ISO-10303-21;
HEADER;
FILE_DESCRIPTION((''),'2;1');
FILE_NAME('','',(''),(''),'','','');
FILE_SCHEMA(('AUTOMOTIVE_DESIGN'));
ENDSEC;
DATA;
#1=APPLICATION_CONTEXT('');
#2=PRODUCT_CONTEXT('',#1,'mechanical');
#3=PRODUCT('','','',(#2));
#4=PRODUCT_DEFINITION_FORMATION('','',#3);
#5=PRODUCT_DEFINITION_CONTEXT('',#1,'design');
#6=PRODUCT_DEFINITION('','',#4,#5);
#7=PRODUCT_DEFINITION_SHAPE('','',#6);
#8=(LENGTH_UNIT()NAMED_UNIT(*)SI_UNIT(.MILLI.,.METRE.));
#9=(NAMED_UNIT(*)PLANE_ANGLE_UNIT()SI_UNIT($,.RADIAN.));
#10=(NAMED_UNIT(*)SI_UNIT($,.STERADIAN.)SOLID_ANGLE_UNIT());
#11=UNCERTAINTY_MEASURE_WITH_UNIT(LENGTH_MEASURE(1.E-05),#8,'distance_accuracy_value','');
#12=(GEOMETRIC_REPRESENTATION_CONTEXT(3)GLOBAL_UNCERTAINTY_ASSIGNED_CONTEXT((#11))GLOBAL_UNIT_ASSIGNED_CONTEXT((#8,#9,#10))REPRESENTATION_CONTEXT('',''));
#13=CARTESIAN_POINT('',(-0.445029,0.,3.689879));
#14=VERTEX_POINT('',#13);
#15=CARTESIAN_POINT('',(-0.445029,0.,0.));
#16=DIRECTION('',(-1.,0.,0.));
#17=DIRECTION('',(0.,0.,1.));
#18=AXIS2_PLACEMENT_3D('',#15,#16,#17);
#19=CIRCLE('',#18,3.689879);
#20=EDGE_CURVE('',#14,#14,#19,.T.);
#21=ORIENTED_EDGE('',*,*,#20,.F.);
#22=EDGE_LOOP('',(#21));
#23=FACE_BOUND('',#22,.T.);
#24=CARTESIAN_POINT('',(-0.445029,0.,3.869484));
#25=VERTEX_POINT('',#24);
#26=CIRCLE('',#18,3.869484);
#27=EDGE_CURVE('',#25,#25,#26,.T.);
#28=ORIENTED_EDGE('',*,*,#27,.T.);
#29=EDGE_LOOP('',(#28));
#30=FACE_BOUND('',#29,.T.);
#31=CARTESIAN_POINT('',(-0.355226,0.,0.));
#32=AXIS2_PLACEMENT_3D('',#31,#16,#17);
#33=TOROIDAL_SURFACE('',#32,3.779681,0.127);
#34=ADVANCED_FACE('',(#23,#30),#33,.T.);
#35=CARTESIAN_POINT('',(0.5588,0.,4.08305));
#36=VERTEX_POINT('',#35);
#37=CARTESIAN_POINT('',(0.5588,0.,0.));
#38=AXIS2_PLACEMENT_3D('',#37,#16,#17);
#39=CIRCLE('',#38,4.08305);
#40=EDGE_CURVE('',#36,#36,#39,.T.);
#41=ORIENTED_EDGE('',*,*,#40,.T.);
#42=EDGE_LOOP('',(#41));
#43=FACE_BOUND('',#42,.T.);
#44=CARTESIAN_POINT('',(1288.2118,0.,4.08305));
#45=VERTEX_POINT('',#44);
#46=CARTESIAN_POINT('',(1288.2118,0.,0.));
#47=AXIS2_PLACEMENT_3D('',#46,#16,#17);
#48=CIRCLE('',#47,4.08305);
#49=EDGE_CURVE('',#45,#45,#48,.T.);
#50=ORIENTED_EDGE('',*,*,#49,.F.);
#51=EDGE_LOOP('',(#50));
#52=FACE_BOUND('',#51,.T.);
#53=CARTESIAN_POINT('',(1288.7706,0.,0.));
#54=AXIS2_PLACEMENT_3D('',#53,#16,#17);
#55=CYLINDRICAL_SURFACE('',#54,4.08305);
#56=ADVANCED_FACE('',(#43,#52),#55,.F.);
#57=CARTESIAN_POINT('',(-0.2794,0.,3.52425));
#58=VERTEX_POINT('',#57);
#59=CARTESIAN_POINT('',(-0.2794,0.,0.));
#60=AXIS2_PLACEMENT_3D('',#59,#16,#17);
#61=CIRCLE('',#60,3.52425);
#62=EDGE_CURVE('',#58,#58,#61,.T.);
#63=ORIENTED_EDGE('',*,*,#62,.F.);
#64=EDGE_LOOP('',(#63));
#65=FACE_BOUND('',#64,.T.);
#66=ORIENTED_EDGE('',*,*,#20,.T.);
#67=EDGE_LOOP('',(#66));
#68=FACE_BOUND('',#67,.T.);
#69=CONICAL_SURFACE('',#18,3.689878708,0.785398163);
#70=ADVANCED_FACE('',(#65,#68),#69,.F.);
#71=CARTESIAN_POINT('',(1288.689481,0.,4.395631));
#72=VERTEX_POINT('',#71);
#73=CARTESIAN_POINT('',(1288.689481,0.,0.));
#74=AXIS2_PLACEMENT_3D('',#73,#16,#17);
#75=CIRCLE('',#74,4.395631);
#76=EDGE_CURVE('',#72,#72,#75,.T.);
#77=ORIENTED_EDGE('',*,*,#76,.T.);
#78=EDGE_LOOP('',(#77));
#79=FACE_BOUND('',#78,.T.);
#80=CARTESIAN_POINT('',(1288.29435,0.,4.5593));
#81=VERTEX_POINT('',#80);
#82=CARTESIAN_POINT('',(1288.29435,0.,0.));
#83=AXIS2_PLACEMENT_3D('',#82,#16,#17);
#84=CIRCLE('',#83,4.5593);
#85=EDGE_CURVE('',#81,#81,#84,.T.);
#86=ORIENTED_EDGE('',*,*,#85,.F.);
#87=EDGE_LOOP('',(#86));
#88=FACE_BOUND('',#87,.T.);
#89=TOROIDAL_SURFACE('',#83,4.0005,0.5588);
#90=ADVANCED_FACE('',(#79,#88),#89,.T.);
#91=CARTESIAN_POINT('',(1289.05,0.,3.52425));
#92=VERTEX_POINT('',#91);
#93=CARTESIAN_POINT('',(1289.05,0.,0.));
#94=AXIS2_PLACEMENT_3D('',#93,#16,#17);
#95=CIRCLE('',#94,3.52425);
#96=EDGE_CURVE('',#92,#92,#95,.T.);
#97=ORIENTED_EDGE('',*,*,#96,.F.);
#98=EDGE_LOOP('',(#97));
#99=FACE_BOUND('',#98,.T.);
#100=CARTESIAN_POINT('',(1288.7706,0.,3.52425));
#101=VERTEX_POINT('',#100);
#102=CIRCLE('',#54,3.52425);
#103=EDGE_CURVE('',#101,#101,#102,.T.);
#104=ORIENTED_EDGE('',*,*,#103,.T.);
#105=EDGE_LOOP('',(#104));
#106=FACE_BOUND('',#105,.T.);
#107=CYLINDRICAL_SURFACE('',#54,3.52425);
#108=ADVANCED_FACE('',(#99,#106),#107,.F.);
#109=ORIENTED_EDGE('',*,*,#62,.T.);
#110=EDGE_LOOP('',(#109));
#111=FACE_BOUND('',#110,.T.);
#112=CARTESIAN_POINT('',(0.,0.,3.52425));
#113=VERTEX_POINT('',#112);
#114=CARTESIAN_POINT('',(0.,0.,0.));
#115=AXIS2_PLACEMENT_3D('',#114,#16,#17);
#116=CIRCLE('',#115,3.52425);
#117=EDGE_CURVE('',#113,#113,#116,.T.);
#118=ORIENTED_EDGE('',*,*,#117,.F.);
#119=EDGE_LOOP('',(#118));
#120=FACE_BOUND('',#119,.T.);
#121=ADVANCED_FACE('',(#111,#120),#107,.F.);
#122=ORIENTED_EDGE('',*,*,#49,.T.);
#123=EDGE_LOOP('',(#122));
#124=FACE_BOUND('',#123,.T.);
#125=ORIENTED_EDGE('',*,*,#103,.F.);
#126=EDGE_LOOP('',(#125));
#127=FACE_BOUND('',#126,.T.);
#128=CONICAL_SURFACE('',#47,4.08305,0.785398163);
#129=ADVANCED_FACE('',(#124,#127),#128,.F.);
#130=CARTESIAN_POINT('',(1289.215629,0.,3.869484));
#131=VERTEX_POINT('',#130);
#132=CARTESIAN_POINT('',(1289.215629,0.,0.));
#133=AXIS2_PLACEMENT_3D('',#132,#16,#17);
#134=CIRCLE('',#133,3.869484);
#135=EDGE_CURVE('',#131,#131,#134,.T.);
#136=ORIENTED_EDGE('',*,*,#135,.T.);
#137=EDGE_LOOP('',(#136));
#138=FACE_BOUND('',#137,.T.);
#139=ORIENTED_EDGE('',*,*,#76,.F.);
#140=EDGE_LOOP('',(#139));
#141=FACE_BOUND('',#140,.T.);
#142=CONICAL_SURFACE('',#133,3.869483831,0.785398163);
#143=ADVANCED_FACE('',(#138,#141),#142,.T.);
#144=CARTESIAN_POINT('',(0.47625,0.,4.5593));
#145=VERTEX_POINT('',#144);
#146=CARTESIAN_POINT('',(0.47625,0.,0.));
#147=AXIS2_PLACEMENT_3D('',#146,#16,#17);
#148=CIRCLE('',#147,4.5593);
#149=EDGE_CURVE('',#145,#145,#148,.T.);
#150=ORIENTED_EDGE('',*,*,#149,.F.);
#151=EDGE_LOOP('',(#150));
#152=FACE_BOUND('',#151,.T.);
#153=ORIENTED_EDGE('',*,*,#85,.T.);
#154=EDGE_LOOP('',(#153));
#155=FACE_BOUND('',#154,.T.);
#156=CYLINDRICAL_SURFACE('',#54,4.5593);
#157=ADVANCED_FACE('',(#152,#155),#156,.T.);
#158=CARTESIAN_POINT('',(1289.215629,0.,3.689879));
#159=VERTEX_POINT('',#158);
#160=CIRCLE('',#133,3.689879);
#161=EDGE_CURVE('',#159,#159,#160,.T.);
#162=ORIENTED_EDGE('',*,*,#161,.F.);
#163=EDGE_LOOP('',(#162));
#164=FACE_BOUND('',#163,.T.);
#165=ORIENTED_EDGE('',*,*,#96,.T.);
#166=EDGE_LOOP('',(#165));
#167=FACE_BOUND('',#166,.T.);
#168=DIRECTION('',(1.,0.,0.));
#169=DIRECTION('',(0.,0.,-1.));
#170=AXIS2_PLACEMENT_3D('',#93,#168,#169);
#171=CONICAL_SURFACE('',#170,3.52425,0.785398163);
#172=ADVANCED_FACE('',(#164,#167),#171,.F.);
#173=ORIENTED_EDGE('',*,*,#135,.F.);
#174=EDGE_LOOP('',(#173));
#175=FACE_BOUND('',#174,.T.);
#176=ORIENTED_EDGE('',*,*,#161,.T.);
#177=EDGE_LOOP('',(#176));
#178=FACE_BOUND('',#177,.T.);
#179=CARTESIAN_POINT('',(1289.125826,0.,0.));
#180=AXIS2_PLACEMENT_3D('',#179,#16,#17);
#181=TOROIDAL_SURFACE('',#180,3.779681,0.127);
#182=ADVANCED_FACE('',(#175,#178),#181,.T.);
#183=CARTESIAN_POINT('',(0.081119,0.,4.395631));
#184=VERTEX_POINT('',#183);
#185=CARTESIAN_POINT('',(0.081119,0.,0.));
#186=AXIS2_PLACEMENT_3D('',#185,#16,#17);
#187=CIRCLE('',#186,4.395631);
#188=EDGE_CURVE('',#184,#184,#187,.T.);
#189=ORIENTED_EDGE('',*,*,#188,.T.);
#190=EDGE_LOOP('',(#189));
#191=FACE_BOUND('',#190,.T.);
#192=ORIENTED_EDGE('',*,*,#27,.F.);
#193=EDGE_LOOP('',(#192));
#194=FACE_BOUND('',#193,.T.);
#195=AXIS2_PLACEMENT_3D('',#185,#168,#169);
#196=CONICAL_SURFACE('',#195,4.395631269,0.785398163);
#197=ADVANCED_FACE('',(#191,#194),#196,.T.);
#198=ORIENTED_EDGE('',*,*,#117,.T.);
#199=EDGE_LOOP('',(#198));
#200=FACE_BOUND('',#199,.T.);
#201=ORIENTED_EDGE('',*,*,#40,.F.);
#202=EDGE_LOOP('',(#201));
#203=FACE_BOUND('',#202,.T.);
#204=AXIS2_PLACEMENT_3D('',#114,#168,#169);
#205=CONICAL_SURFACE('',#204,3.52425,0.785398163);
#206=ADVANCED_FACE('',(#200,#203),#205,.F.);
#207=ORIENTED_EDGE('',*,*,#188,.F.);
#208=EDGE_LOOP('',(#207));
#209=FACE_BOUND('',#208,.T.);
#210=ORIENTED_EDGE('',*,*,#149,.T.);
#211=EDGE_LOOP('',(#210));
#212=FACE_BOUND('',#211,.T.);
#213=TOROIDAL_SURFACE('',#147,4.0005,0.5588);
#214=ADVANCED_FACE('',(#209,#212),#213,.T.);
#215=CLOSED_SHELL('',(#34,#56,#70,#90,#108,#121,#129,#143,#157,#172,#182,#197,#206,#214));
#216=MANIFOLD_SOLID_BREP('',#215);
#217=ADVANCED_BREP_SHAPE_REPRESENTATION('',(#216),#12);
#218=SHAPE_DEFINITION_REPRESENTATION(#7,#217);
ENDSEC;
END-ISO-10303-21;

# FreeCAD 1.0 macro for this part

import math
import FreeCAD as App
import Part
import Sketcher
from FreeCAD import Vector
Q = App.Units.Quantity

doc = App.newDocument("Part")
body = doc.addObject("PartDesign::Body", "Body")

sketch1 = body.newObject("Sketcher::SketchObject", "Sketch")
sketch1.AttachmentSupport = (doc.getObject("XY_Plane"), [""])
sketch1.MapMode = "FlatFace"
sketch1.addGeometry([
    Part.LineSegment(Vector(-0.45, 3.69, 0), Vector(-0.28, 3.52, 0)),
    Part.LineSegment(Vector(-0.28, 3.52, 0), Vector(0, 3.52, 0)),
    Part.LineSegment(Vector(0, 3.52, 0), Vector(0.56, 4.08, 0)),
    Part.LineSegment(Vector(0.56, 4.08, 0), Vector(1288.21, 4.08, 0)),
    Part.LineSegment(Vector(1288.21, 4.08, 0), Vector(1288.77, 3.52, 0)),
    Part.LineSegment(Vector(1288.77, 3.52, 0), Vector(1289.05, 3.52, 0)),
    Part.LineSegment(Vector(1289.05, 3.52, 0), Vector(1289.22, 3.69, 0)),
    Part.ArcOfCircle(Part.Circle(Vector(1289.13, 3.78, 0), Vector(0, 0, 1), 0.13), math.radians(-45), math.radians(45)),
    Part.LineSegment(Vector(1289.22, 3.87, 0), Vector(1288.69, 4.4, 0)),
    Part.ArcOfCircle(Part.Circle(Vector(1288.29, 4, 0), Vector(0, 0, 1), 0.56), math.radians(45), math.radians(90)),
    Part.LineSegment(Vector(1288.29, 4.56, 0), Vector(0.48, 4.56, 0)),
    Part.ArcOfCircle(Part.Circle(Vector(0.48, 4, 0), Vector(0, 0, 1), 0.56), math.radians(90), math.radians(135)),
    Part.LineSegment(Vector(0.08, 4.4, 0), Vector(-0.45, 3.87, 0)),
    Part.ArcOfCircle(Part.Circle(Vector(-0.36, 3.78, 0), Vector(0, 0, 1), 0.13), math.radians(135), math.radians(225)),
], False)
sketch1.addConstraint([
    Sketcher.Constraint("Coincident", 0, 2, 1, 1),
    Sketcher.Constraint("Coincident", 1, 2, 2, 1),
    Sketcher.Constraint("Coincident", 2, 2, 3, 1),
    Sketcher.Constraint("Coincident", 3, 2, 4, 1),
    Sketcher.Constraint("Coincident", 4, 2, 5, 1),
    Sketcher.Constraint("Coincident", 5, 2, 6, 1),
    Sketcher.Constraint("Tangent", 6, 2, 7, 1),
    Sketcher.Constraint("Tangent", 7, 2, 8, 1),
    Sketcher.Constraint("Tangent", 8, 2, 9, 1),
    Sketcher.Constraint("Tangent", 9, 2, 10, 1),
    Sketcher.Constraint("Tangent", 10, 2, 11, 1),
    Sketcher.Constraint("Tangent", 11, 2, 12, 1),
    Sketcher.Constraint("Tangent", 12, 2, 13, 1),
    Sketcher.Constraint("Tangent", 13, 2, 0, 1),
    Sketcher.Constraint("Horizontal", 1),
    Sketcher.Constraint("Horizontal", 3),
    Sketcher.Constraint("Horizontal", 5),
    Sketcher.Constraint("Horizontal", 10),
    Sketcher.Constraint("Equal", 9, 11),
    Sketcher.Constraint("Equal", 7, 13),
    Sketcher.Constraint("PointOnObject", 1, 2, -2),
    Sketcher.Constraint("Perpendicular", 0, 2),
    Sketcher.Constraint("Perpendicular", 2, 4),
    Sketcher.Constraint("Perpendicular", 4, 6),
    Sketcher.Constraint("Perpendicular", 6, 8),
    Sketcher.Constraint("Perpendicular", 8, 12),
    Sketcher.Constraint("Horizontal", 7, 3, 13, 3),
    Sketcher.Constraint("Horizontal", 1, 2, 4, 2),
    Sketcher.Constraint("Horizontal", 8, 2, 11, 2),
    Sketcher.Constraint("Equal", 1, 5),
    Sketcher.Constraint("Radius", 7, Q("0.005 in")),
    Sketcher.Constraint("Radius", 9, Q("0.022 in")),
    Sketcher.Constraint("DistanceX", 1, 1, 1, 2, Q("0.011 in")),
    Sketcher.Constraint("DistanceX", 3, 1, 3, 2, Q("50.695 in")),
    Sketcher.Constraint("DistanceX", -1, 1, 5, 2, Q("50.75 in")),
    Sketcher.Constraint("DistanceX", 10, 2, 10, 1, Q("50.7015 in")),
    Sketcher.Constraint("DistanceY", -1, 1, 9, 3, Q("0.1575 in")),
    Sketcher.Constraint("DistanceY", -1, 1, 7, 3, 3.779681),
])
revolution = body.newObject("PartDesign::Revolution", "Revolution")
revolution.Profile = sketch1
revolution.ReferenceAxis = (sketch1, ["H_Axis"])
revolution.Angle = 360

doc.recompute()
